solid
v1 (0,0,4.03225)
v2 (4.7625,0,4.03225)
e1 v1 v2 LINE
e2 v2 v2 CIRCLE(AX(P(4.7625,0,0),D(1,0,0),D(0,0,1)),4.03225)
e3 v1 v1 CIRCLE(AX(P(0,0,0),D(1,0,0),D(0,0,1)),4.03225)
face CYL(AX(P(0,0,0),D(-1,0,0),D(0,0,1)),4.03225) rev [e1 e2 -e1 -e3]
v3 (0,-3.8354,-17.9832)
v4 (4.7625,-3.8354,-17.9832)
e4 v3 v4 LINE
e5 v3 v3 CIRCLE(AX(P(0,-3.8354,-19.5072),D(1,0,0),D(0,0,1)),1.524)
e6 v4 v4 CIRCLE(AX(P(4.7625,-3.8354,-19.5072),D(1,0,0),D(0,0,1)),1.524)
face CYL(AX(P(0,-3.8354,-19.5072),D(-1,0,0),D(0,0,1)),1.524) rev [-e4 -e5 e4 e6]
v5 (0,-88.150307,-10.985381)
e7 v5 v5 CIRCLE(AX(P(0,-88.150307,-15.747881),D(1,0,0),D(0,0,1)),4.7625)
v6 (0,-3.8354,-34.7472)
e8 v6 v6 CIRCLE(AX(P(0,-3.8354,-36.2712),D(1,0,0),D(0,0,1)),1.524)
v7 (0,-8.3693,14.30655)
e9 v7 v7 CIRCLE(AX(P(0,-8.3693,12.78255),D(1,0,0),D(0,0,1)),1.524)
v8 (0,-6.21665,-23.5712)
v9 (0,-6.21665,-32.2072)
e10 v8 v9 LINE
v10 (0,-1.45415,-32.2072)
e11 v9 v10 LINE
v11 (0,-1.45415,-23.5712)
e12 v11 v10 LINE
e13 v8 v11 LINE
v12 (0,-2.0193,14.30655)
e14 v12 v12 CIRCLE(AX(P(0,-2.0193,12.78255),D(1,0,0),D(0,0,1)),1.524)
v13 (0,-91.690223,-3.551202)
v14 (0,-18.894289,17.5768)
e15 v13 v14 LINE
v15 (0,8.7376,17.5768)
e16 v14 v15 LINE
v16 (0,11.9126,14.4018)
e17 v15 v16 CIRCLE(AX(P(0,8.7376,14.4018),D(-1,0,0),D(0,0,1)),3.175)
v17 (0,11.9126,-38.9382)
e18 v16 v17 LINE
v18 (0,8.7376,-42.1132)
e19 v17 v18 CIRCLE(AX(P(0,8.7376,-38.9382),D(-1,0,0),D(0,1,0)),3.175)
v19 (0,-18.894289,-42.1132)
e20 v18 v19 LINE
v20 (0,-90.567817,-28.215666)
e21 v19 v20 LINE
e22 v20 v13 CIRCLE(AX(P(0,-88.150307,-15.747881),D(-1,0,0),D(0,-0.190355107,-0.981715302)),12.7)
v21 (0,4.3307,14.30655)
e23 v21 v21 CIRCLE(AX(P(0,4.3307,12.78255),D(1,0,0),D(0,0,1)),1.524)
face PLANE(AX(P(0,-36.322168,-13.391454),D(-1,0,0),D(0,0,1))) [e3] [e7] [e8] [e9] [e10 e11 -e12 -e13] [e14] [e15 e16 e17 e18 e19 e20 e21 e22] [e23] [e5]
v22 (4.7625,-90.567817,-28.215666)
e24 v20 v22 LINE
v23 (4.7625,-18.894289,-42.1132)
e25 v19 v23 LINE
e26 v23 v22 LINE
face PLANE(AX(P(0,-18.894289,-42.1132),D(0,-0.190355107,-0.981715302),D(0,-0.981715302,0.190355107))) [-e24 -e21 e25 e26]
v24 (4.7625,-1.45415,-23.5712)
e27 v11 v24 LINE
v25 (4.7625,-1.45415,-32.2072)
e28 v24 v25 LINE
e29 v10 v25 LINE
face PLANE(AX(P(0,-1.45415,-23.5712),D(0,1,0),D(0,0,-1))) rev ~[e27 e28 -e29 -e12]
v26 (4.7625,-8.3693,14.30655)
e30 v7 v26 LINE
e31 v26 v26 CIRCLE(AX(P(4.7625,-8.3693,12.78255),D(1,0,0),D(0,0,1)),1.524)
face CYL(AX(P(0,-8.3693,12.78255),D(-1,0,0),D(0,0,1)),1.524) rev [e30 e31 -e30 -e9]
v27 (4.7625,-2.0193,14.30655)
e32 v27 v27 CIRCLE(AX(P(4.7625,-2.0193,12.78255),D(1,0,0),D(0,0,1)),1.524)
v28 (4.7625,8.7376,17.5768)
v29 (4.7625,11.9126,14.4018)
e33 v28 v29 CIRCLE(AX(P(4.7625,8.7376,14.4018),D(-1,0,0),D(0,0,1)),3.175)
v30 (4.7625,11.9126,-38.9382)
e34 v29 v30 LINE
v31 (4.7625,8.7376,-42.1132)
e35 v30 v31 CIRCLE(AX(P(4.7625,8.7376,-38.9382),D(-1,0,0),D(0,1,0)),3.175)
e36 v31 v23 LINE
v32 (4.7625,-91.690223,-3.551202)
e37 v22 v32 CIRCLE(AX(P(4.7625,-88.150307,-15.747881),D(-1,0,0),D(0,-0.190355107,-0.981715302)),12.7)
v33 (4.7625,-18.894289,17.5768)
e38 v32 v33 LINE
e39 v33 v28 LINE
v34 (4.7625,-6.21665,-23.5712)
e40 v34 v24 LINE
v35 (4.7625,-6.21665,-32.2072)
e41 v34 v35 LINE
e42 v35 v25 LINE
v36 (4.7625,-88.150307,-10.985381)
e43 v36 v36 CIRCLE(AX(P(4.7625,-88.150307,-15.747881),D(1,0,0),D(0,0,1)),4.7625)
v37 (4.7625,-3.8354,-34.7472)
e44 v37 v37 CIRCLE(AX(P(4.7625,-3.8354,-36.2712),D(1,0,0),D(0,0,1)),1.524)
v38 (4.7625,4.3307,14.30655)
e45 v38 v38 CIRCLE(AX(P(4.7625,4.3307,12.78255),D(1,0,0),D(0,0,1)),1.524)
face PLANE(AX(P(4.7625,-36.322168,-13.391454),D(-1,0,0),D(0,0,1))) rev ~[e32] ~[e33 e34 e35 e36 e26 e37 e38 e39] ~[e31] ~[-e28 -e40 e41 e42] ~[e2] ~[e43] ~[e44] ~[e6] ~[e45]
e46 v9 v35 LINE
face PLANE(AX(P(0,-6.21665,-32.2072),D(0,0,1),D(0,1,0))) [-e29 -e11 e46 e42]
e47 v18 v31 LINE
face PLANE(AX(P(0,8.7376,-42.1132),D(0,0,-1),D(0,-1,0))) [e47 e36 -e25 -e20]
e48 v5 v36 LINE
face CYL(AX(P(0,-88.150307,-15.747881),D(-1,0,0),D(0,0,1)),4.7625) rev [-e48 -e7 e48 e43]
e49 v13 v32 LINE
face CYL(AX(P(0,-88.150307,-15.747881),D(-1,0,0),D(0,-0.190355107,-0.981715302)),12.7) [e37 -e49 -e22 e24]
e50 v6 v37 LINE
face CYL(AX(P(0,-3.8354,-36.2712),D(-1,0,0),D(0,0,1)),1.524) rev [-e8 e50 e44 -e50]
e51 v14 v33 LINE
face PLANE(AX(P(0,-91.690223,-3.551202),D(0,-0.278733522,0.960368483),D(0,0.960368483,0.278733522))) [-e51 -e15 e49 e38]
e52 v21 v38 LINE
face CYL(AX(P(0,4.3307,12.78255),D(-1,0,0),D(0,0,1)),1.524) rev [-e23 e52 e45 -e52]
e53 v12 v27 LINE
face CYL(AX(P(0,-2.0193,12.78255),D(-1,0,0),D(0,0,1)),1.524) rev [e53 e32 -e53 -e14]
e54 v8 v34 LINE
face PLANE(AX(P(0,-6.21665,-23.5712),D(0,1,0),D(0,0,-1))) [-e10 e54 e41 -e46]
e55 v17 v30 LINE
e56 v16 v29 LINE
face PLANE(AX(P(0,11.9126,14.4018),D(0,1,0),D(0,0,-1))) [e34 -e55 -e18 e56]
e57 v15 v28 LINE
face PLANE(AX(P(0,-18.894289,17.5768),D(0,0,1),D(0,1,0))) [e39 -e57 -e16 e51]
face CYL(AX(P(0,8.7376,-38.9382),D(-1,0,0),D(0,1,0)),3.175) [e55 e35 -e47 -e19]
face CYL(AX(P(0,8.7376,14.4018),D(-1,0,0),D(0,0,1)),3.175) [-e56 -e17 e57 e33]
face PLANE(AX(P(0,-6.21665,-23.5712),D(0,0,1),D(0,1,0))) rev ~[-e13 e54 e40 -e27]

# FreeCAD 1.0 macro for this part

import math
import FreeCAD as App
import Part
import Sketcher

V = App.Vector
Q = App.Units.Quantity

doc = App.newDocument("Part")
params = doc.addObject("Spreadsheet::Sheet", "Params")
for row, (alias, value) in enumerate([
    ("sketch1_radius", "0.5 in"),
    ("sketch1_diameter", "0.12 in"),
    ("sketch1_diameter2", "0.12 in"),
    ("sketch1_diameter3", "0.12 in"),
    ("sketch1_diameter4", "0.12 in"),
    ("pad1_length", "0.1875 in"),
], start=1):
    params.set(f"A{row}", alias)
    params.set(f"B{row}", "=" + value)
    params.setAlias(f"B{row}", alias)

body = doc.addObject("PartDesign::Body", "Body")

# Sketch on YZ plane
sketch1 = body.newObject("Sketcher::SketchObject", "Sketch")
sketch1.AttachmentSupport = (doc.getObject("YZ_Plane"), [""])
sketch1.MapMode = "FlatFace"
sketch1.addGeometry([
    Part.LineSegment(V(-18.894289, -42.1132, 0), V(8.7376, -42.1132, 0)),  # 0
    Part.ArcOfCircle(Part.Circle(V(8.7376, -38.9382, 0), V(0, 0, 1), 3.175), math.radians(-90), math.radians(0)),  # 1
    Part.LineSegment(V(11.9126, -38.9382, 0), V(11.9126, 14.4018, 0)),  # 2
    Part.ArcOfCircle(Part.Circle(V(8.7376, 14.4018, 0), V(0, 0, 1), 3.175), math.radians(0), math.radians(90)),  # 3
    Part.LineSegment(V(8.7376, 17.5768, 0), V(-18.894289, 17.5768, 0)),  # 4
    Part.LineSegment(V(-18.894289, 17.5768, 0), V(-91.690223, -3.551202, 0)),  # 5
    Part.ArcOfCircle(Part.Circle(V(-88.150307, -15.747881, 0), V(0, 0, 1), 12.7), math.radians(106.184632), math.radians(259.026491)),  # 6
    Part.LineSegment(V(-90.567817, -28.215666, 0), V(-18.894289, -42.1132, 0)),  # 7
    Part.Circle(V(-88.150307, -15.747881, 0), V(0, 0, 1), 4.7625),  # 8
    Part.Circle(V(-3.8354, -36.2712, 0), V(0, 0, 1), 1.524),  # 9
    Part.LineSegment(V(-6.21665, -23.5712, 0), V(-1.45415, -23.5712, 0)),  # 10
    Part.LineSegment(V(-1.45415, -23.5712, 0), V(-1.45415, -32.2072, 0)),  # 11
    Part.LineSegment(V(-1.45415, -32.2072, 0), V(-6.21665, -32.2072, 0)),  # 12
    Part.LineSegment(V(-6.21665, -32.2072, 0), V(-6.21665, -23.5712, 0)),  # 13
    Part.Circle(V(-3.8354, -19.5072, 0), V(0, 0, 1), 1.524),  # 14
    Part.Circle(V(0, 0, 0), V(0, 0, 1), 4.03225),  # 15
    Part.Circle(V(-8.3693, 12.78255, 0), V(0, 0, 1), 1.524),  # 16
    Part.Circle(V(-2.0193, 12.78255, 0), V(0, 0, 1), 1.524),  # 17
    Part.Circle(V(4.3307, 12.78255, 0), V(0, 0, 1), 1.524),  # 18
], False)
sketch1.addConstraint([
    Sketcher.Constraint("Coincident", 0, 2, 1, 1),
    Sketcher.Constraint("Coincident", 1, 2, 2, 1),
    Sketcher.Constraint("Coincident", 2, 2, 3, 1),
    Sketcher.Constraint("Coincident", 3, 2, 4, 1),
    Sketcher.Constraint("Coincident", 4, 2, 5, 1),
    Sketcher.Constraint("Coincident", 5, 2, 6, 1),
    Sketcher.Constraint("Coincident", 6, 2, 7, 1),
    Sketcher.Constraint("Coincident", 7, 2, 0, 1),
    Sketcher.Constraint("Coincident", 10, 2, 11, 1),
    Sketcher.Constraint("Coincident", 11, 2, 12, 1),
    Sketcher.Constraint("Coincident", 12, 2, 13, 1),
    Sketcher.Constraint("Coincident", 13, 2, 10, 1),
    Sketcher.Constraint("Horizontal", 0),
    Sketcher.Constraint("Vertical", 2),
    Sketcher.Constraint("Horizontal", 4),
    Sketcher.Constraint("Horizontal", 10),
    Sketcher.Constraint("Vertical", 11),
    Sketcher.Constraint("Horizontal", 12),
    Sketcher.Constraint("Vertical", 13),
    Sketcher.Constraint("Coincident", 15, 3, -1, 1),
    Sketcher.Constraint("Coincident", 8, 3, 6, 3),
    Sketcher.Constraint("Radius", 6, Q("0.5 in")),
    Sketcher.Constraint("Diameter", 9, Q("0.12 in")),
    Sketcher.Constraint("Diameter", 14, Q("0.12 in")),
    Sketcher.Constraint("Diameter", 16, Q("0.12 in")),
    Sketcher.Constraint("Diameter", 17, Q("0.12 in")),
    Sketcher.Constraint("Diameter", 18, Q("0.12 in")),
    Sketcher.Constraint("Diameter", 8, Q("0.375 in")),
    Sketcher.Constraint("DistanceY", 2, 1, 2, 2, Q("2.1 in")),
    Sketcher.Constraint("Radius", 1, Q("0.125 in")),
    Sketcher.Constraint("Radius", 3, Q("0.125 in")),
    Sketcher.Constraint("Diameter", 15, Q("0.3175 in")),
    Sketcher.Constraint("DistanceY", 11, 2, 11, 1, Q("0.34 in")),
    Sketcher.Constraint("DistanceY", 1, 3, 3, 3, Q("2.1 in")),
    Sketcher.Constraint("DistanceX", 16, 3, 18, 3, Q("0.5 in")),
    Sketcher.Constraint("DistanceY", 9, 3, 10, 2, Q("0.5 in")),
    Sketcher.Constraint("DistanceY", 11, 2, 14, 3, Q("0.5 in")),
    Sketcher.Constraint("DistanceX", 10, 1, 10, 2, Q("0.1875 in")),
    Sketcher.Constraint("DistanceX", 16, 3, 17, 3, Q("0.25 in")),
    Sketcher.Constraint("DistanceY", 0, 2, 9, 3, Q("0.23 in")),
    Sketcher.Constraint("DistanceX", 9, 3, 1, 2, Q("0.62 in")),
    Sketcher.Constraint("DistanceX", 14, 3, 1, 2, Q("0.62 in")),
    Sketcher.Constraint("DistanceX", -1, 1, 1, 3, Q("0.344 in")),
    Sketcher.Constraint("DistanceY", 1, 3, -1, 1, Q("1.533 in")),
    Sketcher.Constraint("DistanceX", -1, 1, 0, 2, Q("0.344 in")),
    Sketcher.Constraint("DistanceY", 1, 2, -1, 1, Q("1.533 in")),
    Sketcher.Constraint("DistanceX", -1, 1, 3, 2, Q("0.344 in")),
    Sketcher.Constraint("DistanceX", 14, 3, 10, 2, Q("0.09375 in")),
    Sketcher.Constraint("DistanceX", 16, 3, -1, 1, Q("0.3295 in")),
    Sketcher.Constraint("DistanceX", 0, 1, 0, 2, 27.631889),
    Sketcher.Constraint("DistanceX", 4, 2, 4, 1, 27.631889),
    Sketcher.Constraint("DistanceY", 5, 2, -1, 1, 3.551202),
    Sketcher.Constraint("DistanceY", 6, 3, -1, 1, 15.747881),
    Sketcher.Constraint("DistanceY", -1, 1, 16, 3, 12.78255),
    Sketcher.Constraint("DistanceY", -1, 1, 17, 3, 12.78255),
    Sketcher.Constraint("DistanceY", -1, 1, 18, 3, 12.78255),
    Sketcher.Constraint("DistanceX", 6, 2, 8, 3, 2.41751),
    Sketcher.Constraint("Distance", 5, 75.800003),
])
sketch1.setExpression("Constraints[21]", "Params.sketch1_radius")
sketch1.setExpression("Constraints[22]", "Params.sketch1_diameter")
sketch1.setExpression("Constraints[23]", "Params.sketch1_diameter2")
sketch1.setExpression("Constraints[24]", "Params.sketch1_diameter3")
sketch1.setExpression("Constraints[25]", "Params.sketch1_diameter4")
pad1 = body.newObject("PartDesign::Pad", "Pad")
pad1.Profile = sketch1
pad1.setExpression("Length", "Params.pad1_length")

doc.recompute()
